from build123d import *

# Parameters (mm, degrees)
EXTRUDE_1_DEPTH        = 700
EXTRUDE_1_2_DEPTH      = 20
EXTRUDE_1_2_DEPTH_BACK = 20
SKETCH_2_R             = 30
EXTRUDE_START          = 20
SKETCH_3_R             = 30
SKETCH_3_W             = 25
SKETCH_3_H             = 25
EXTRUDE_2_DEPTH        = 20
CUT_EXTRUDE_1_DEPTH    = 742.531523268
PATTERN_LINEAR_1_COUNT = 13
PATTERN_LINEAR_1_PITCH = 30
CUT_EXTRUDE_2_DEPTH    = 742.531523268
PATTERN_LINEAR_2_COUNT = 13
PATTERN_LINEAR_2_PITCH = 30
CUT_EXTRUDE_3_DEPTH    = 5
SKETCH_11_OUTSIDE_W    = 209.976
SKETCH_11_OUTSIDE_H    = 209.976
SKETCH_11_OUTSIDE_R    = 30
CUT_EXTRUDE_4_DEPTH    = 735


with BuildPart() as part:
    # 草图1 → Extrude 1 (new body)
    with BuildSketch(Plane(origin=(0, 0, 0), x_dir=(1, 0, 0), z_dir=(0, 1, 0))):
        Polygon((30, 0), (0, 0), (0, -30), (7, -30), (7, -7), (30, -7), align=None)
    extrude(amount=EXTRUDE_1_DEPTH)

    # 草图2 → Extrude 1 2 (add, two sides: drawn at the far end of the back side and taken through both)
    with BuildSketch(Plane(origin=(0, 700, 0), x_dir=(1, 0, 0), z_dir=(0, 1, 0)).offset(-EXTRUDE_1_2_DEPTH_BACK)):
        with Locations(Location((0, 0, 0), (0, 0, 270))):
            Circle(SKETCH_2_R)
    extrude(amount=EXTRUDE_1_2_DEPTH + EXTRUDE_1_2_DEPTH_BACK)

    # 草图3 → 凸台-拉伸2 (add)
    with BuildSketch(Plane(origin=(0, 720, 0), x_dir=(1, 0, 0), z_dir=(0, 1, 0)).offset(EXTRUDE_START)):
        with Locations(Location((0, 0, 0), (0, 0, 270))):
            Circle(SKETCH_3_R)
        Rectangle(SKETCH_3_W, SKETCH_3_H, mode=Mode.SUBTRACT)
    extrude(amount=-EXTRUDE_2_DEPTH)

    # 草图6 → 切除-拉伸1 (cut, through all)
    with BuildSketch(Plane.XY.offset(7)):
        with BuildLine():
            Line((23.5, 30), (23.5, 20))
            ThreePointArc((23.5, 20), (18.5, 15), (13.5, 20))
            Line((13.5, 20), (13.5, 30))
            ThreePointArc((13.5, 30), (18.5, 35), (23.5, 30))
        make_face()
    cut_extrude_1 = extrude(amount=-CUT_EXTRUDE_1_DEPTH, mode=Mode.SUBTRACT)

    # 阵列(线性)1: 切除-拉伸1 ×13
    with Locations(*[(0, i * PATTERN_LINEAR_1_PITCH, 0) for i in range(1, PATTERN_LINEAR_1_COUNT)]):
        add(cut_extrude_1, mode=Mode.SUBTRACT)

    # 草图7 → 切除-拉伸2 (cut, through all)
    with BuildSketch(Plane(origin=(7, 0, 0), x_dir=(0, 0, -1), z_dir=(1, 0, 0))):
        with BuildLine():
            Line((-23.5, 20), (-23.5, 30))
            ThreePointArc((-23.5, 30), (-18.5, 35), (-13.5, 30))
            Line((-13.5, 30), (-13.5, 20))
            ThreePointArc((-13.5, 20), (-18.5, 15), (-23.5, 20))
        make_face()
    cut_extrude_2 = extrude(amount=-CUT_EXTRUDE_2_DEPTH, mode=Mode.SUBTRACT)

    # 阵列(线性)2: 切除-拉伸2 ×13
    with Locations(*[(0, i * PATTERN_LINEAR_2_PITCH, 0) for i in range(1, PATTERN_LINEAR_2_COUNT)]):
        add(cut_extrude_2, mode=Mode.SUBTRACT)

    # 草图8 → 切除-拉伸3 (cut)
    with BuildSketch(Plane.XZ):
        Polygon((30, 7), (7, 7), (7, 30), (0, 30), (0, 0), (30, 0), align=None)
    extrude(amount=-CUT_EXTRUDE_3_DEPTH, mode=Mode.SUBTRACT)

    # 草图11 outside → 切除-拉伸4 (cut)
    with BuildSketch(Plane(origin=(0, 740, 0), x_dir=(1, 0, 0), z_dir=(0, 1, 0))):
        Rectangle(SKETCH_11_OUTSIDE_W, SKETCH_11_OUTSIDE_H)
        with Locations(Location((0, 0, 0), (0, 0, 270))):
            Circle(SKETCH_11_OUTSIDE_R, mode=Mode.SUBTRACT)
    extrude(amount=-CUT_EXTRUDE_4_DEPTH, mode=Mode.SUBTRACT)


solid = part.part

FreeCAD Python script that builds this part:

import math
import FreeCAD as App
import Part
import Sketcher

V = App.Vector


def add_polygon(sketch, points):
    """Adds a closed chain of lines whose ends are joined by coincident constraints."""
    first, n = sketch.GeometryCount, len(points)
    for a, b in zip(points, points[1:] + points[:1]):
        sketch.addGeometry(Part.LineSegment(App.Vector(*a, 0), App.Vector(*b, 0)), False)
    for i in range(n):
        sketch.addConstraint(Sketcher.Constraint("Coincident", first + i, 2, first + (i + 1) % n, 1))

doc = App.newDocument("Part")
params = doc.addObject("Spreadsheet::Sheet", "Params")
for row, (alias, value) in enumerate([
    ("sketch1_width", "30 mm"),
    ("sketch1_width2", "7 mm"),
    ("pad1_length", "700 mm"),
    ("sketch2_diameter", "60 mm"),
    ("pad2_length", "20 mm"),
    ("pad2_length2", "20 mm"),
    ("sketch3_diameter", "60 mm"),
    ("sketch3_width", "25 mm"),
    ("pad3_length", "20 mm"),
    ("sketch4_radius", "5 mm"),
    ("sketch4_height", "10 mm"),
    ("linearpattern_pitch", "30 mm"),
    ("sketch5_radius", "5 mm"),
    ("sketch5_width", "10 mm"),
    ("linearpattern2_pitch", "30 mm"),
    ("sketch6_width", "23 mm"),
    ("sketch6_width2", "7 mm"),
    ("pocket3_length", "5 mm"),
    ("sketch7_diameter", "60 mm"),
    ("pocket4_length", "735 mm"),
], start=1):
    params.set(f"A{row}", alias)
    params.set(f"B{row}", "=" + value)
    params.setAlias(f"B{row}", alias)

body = doc.addObject("PartDesign::Body", "Body")

sketch1 = body.newObject("Sketcher::SketchObject", "Sketch")
sketch1.AttachmentSupport = (doc.getObject("XZ_Plane"), [""])
sketch1.MapMode = "FlatFace"
add_polygon(sketch1, [(30, 0), (0, 0), (0, 30), (7, 30), (7, 7), (30, 7)])
sketch1.addConstraint([
    Sketcher.Constraint("Horizontal", 0),
    Sketcher.Constraint("Vertical", 1),
    Sketcher.Constraint("Horizontal", 2),
    Sketcher.Constraint("Vertical", 3),
    Sketcher.Constraint("Horizontal", 4),
    Sketcher.Constraint("Vertical", 5),
    Sketcher.Constraint("Coincident", 0, 2, -1, 1),
    Sketcher.Constraint("Equal", 0, 1),
    Sketcher.Constraint("Equal", 4, 3),
    Sketcher.Constraint("DistanceX", 0, 2, 0, 1, 30.0),
    Sketcher.Constraint("DistanceX", 2, 1, 2, 2, 7.0),
])
sketch1.setExpression("Constraints[15]", "Params.sketch1_width")
sketch1.setExpression("Constraints[16]", "Params.sketch1_width2")
pad1 = body.newObject("PartDesign::Pad", "Pad")
pad1.Profile = sketch1
pad1.setExpression("Length", "Params.pad1_length")
pad1.Reversed = True

sketch2 = body.newObject("Sketcher::SketchObject", "Sketch001")
sketch2.AttachmentSupport = (doc.getObject("XZ_Plane"), [""])
sketch2.MapMode = "FlatFace"
sketch2.AttachmentOffset = App.Placement(V(0, 0, -700), App.Rotation())
sketch2.addGeometry(Part.Circle(V(0, 0, 0), V(0, 0, 1), 30), False)
sketch2.addConstraint([
    Sketcher.Constraint("Coincident", 0, 3, -1, 1),
    Sketcher.Constraint("Diameter", 0, 60.0),
])
sketch2.setExpression("Constraints[1]", "Params.sketch2_diameter")
pad2 = body.newObject("PartDesign::Pad", "Pad001")
pad2.Profile = sketch2
pad2.Type = "TwoLengths"
pad2.setExpression("Length", "Params.pad2_length")
pad2.setExpression("Length2", "Params.pad2_length2")
pad2.Reversed = True

sketch3 = body.newObject("Sketcher::SketchObject", "Sketch002")
sketch3.AttachmentSupport = (doc.getObject("XZ_Plane"), [""])
sketch3.MapMode = "FlatFace"
sketch3.AttachmentOffset = App.Placement(V(0, 0, -740), App.Rotation())
sketch3.addGeometry(Part.Circle(V(0, 0, 0), V(0, 0, 1), 30), False)
add_polygon(sketch3, [(12, 12), (-12, 12), (-12, -12), (12, -12)])
sketch3.addConstraint([
    Sketcher.Constraint("Horizontal", 1),
    Sketcher.Constraint("Vertical", 2),
    Sketcher.Constraint("Horizontal", 3),
    Sketcher.Constraint("Vertical", 4),
    Sketcher.Constraint("Coincident", 0, 3, -1, 1),
    Sketcher.Constraint("Symmetric", 1, 2, 3, 2, -1, 1),
    Sketcher.Constraint("Equal", 3, 2),
    Sketcher.Constraint("Diameter", 0, 60.0),
    Sketcher.Constraint("DistanceX", 1, 2, 1, 1, 25.0),
])
sketch3.setExpression("Constraints[11]", "Params.sketch3_diameter")
sketch3.setExpression("Constraints[12]", "Params.sketch3_width")
pad3 = body.newObject("PartDesign::Pad", "Pad002")
pad3.Profile = sketch3
pad3.setExpression("Length", "Params.pad3_length")

sketch4 = body.newObject("Sketcher::SketchObject", "Sketch003")
sketch4.AttachmentSupport = (doc.getObject("XY_Plane"), [""])
sketch4.MapMode = "FlatFace"
sketch4.AttachmentOffset = App.Placement(V(0, 0, 7), App.Rotation())
sketch4.addGeometry([
    Part.LineSegment(V(24, 20, 0), V(24, 30, 0)),
    Part.ArcOfCircle(Part.Circle(V(18, 30, 0), V(0, 0, 1), 5), math.radians(0), math.radians(180)),
    Part.LineSegment(V(14, 30, 0), V(14, 20, 0)),
    Part.ArcOfCircle(Part.Circle(V(18, 20, 0), V(0, 0, 1), 5), math.radians(180), math.radians(360)),
], False)
sketch4.addConstraint([
    Sketcher.Constraint("Tangent", 0, 2, 1, 1),
    Sketcher.Constraint("Tangent", 1, 2, 2, 1),
    Sketcher.Constraint("Tangent", 2, 2, 3, 1),
    Sketcher.Constraint("Tangent", 3, 2, 0, 1),
    Sketcher.Constraint("Vertical", 0),
    Sketcher.Constraint("Vertical", 2),
    Sketcher.Constraint("Radius", 1, 5.0),
    Sketcher.Constraint("DistanceY", 0, 1, 0, 2, 10.0),
    Sketcher.Constraint("DistanceY", -1, 1, 1, 3, 30.0),
    Sketcher.Constraint("DistanceX", -1, 1, 1, 3, 18.5),
])
sketch4.setExpression("Constraints[6]", "Params.sketch4_radius")
sketch4.setExpression("Constraints[7]", "Params.sketch4_height")
pocket1 = body.newObject("PartDesign::Pocket", "Pocket")
pocket1.Profile = sketch4
pocket1.Type = "ThroughAll"
doc.recompute()

linearpattern = body.newObject("PartDesign::LinearPattern", "LinearPattern")
linearpattern.Originals = [pocket1]
linearpattern.Direction = (doc.getObject("Y_Axis"), [""])
linearpattern.Mode = "offset"
linearpattern.setExpression("Offset", "Params.linearpattern_pitch")
linearpattern.Occurrences = 13
body.Tip = linearpattern

sketch5 = body.newObject("Sketcher::SketchObject", "Sketch004")
sketch5.AttachmentSupport = (doc.getObject("YZ_Plane"), [""])
sketch5.MapMode = "FlatFace"
sketch5.AttachmentOffset = App.Placement(V(0, 0, 7), App.Rotation())
sketch5.addGeometry([
    Part.LineSegment(V(30, 24, 0), V(20, 24, 0)),
    Part.ArcOfCircle(Part.Circle(V(20, 18, 0), V(0, 0, 1), 5), math.radians(90), math.radians(270)),
    Part.LineSegment(V(20, 14, 0), V(30, 14, 0)),
    Part.ArcOfCircle(Part.Circle(V(30, 18, 0), V(0, 0, 1), 5), math.radians(-90), math.radians(90)),
], False)
sketch5.addConstraint([
    Sketcher.Constraint("Tangent", 0, 2, 1, 1),
    Sketcher.Constraint("Tangent", 1, 2, 2, 1),
    Sketcher.Constraint("Tangent", 2, 2, 3, 1),
    Sketcher.Constraint("Tangent", 3, 2, 0, 1),
    Sketcher.Constraint("Horizontal", 0),
    Sketcher.Constraint("Horizontal", 2),
    Sketcher.Constraint("Radius", 1, 5.0),
    Sketcher.Constraint("DistanceX", 0, 2, 0, 1, 10.0),
    Sketcher.Constraint("DistanceX", -1, 1, 1, 3, 20.0),
    Sketcher.Constraint("DistanceY", -1, 1, 1, 3, 18.5),
])
sketch5.setExpression("Constraints[6]", "Params.sketch5_radius")
sketch5.setExpression("Constraints[7]", "Params.sketch5_width")
pocket2 = body.newObject("PartDesign::Pocket", "Pocket001")
pocket2.Profile = sketch5
pocket2.Type = "ThroughAll"
doc.recompute()

linearpattern2 = body.newObject("PartDesign::LinearPattern", "LinearPattern001")
linearpattern2.Originals = [pocket2]
linearpattern2.Direction = (doc.getObject("Y_Axis"), [""])
linearpattern2.Mode = "offset"
linearpattern2.setExpression("Offset", "Params.linearpattern2_pitch")
linearpattern2.Occurrences = 13
body.Tip = linearpattern2

sketch6 = body.newObject("Sketcher::SketchObject", "Sketch005")
sketch6.AttachmentSupport = (doc.getObject("XZ_Plane"), [""])
sketch6.MapMode = "FlatFace"
add_polygon(sketch6, [(30, 7), (7, 7), (7, 30), (0, 30), (0, 0), (30, 0)])
sketch6.addConstraint([
    Sketcher.Constraint("Horizontal", 0),
    Sketcher.Constraint("Vertical", 1),
    Sketcher.Constraint("Horizontal", 2),
    Sketcher.Constraint("Vertical", 3),
    Sketcher.Constraint("Horizontal", 4),
    Sketcher.Constraint("Vertical", 5),
    Sketcher.Constraint("Coincident", 3, 2, -1, 1),
    Sketcher.Constraint("Equal", 0, 1),
    Sketcher.Constraint("Equal", 4, 3),
    Sketcher.Constraint("DistanceX", 0, 2, 0, 1, 23.0),
    Sketcher.Constraint("DistanceX", 2, 2, 2, 1, 7.0),
])
sketch6.setExpression("Constraints[15]", "Params.sketch6_width")
sketch6.setExpression("Constraints[16]", "Params.sketch6_width2")
pocket3 = body.newObject("PartDesign::Pocket", "Pocket002")
pocket3.Profile = sketch6
pocket3.setExpression("Length", "Params.pocket3_length")

sketch7 = body.newObject("Sketcher::SketchObject", "Sketch006")
sketch7.AttachmentSupport = (doc.getObject("XZ_Plane"), [""])
sketch7.MapMode = "FlatFace"
sketch7.AttachmentOffset = App.Placement(V(0, 0, -740), App.Rotation())
add_polygon(sketch7, [(-105, -105), (-105, 105), (105, 105), (105, -105)])
sketch7.addGeometry(Part.Circle(V(0, 0, 0), V(0, 0, 1), 30), False)
sketch7.addConstraint([
    Sketcher.Constraint("Vertical", 0),
    Sketcher.Constraint("Horizontal", 1),
    Sketcher.Constraint("Vertical", 2),
    Sketcher.Constraint("Horizontal", 3),
    Sketcher.Constraint("Coincident", 4, 3, -1, 1),
    Sketcher.Constraint("Symmetric", 0, 2, 2, 2, -1, 1),
    Sketcher.Constraint("Equal", 3, 0),
    Sketcher.Constraint("Diameter", 4, 60.0),
    Sketcher.Constraint("DistanceX", 1, 1, 1, 2, 209.976),
])
sketch7.setExpression("Constraints[11]", "Params.sketch7_diameter")
pocket4 = body.newObject("PartDesign::Pocket", "Pocket003")
pocket4.Profile = sketch7
pocket4.setExpression("Length", "Params.pocket4_length")
pocket4.Reversed = True

doc.recompute()
